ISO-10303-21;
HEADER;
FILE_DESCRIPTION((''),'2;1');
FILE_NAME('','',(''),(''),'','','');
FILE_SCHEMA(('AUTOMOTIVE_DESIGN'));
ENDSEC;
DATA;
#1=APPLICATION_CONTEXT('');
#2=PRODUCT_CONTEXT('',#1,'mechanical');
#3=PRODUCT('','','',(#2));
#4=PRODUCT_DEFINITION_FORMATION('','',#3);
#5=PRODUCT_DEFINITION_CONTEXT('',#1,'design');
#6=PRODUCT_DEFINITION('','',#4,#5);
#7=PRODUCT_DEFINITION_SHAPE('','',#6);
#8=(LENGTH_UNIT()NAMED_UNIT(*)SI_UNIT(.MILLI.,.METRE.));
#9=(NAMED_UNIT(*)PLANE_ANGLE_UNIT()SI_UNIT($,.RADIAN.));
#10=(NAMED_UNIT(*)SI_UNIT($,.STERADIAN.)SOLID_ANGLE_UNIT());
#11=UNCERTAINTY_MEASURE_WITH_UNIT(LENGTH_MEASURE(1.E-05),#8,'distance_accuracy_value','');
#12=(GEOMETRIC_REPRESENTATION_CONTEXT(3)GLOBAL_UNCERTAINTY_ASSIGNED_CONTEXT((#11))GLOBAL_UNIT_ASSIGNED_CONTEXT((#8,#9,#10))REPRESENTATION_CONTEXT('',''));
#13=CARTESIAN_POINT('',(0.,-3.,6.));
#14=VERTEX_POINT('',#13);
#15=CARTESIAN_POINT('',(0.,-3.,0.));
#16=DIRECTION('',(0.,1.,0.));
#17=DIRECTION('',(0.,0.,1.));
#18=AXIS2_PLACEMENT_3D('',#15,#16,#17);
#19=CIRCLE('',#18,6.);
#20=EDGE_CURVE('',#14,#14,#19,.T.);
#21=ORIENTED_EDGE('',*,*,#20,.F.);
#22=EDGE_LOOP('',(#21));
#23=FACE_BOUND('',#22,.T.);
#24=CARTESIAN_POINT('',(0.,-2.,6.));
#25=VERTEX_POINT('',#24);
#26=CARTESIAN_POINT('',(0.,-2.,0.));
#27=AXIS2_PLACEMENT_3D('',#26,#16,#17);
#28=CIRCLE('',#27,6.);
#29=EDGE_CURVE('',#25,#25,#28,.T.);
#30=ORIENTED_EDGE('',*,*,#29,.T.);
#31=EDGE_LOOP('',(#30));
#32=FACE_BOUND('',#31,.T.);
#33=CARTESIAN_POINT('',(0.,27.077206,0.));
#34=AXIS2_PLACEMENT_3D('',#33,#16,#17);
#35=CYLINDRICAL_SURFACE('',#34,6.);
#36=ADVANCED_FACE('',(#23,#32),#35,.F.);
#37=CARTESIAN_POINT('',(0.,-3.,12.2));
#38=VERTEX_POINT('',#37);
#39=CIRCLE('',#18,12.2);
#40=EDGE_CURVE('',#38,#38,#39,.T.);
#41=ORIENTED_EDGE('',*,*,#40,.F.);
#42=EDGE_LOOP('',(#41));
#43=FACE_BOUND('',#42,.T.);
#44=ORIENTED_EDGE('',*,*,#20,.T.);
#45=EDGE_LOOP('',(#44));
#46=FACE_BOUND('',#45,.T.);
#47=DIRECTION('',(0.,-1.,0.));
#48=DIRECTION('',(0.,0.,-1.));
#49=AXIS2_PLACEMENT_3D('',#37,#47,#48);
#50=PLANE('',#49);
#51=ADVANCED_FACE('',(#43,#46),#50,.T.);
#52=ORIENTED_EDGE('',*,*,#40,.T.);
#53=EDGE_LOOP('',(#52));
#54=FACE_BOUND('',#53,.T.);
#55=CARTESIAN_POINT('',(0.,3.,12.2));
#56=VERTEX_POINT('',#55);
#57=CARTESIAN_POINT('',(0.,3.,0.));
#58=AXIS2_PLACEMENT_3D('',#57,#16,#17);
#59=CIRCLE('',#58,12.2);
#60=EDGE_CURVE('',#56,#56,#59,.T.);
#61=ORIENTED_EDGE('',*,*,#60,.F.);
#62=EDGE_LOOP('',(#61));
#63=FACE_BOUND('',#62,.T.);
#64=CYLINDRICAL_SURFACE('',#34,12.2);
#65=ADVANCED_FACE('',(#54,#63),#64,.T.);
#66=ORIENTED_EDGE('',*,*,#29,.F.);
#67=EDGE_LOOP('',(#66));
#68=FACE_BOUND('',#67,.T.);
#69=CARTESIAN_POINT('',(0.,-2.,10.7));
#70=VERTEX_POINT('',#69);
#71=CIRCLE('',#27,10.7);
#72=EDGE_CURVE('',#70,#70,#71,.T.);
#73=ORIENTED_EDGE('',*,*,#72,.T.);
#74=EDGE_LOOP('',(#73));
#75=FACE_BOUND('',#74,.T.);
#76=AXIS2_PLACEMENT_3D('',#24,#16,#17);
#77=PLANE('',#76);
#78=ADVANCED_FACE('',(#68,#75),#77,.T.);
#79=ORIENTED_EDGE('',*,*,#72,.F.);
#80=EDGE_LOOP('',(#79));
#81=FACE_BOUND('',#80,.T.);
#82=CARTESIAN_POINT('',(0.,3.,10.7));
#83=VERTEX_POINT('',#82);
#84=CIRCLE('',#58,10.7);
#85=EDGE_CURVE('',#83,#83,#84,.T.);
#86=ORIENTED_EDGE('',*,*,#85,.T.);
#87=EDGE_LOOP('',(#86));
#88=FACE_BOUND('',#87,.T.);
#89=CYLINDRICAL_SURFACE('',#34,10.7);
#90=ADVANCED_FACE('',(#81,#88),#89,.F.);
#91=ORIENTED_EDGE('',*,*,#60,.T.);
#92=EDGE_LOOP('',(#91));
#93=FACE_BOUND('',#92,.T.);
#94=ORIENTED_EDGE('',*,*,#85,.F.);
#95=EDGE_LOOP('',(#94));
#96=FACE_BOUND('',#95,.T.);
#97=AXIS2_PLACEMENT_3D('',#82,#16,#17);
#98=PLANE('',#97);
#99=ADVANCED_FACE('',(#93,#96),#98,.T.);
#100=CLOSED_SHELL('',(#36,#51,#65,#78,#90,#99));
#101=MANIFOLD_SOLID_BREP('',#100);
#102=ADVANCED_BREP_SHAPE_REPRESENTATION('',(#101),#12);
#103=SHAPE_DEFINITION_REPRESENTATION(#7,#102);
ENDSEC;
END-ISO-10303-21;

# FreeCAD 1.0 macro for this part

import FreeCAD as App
import Part
import Sketcher


def add_polygon(sketch, points):
    """Adds a closed chain of lines whose ends are joined by coincident constraints."""
    first, n = sketch.GeometryCount, len(points)
    for a, b in zip(points, points[1:] + points[:1]):
        sketch.addGeometry(Part.LineSegment(App.Vector(*a, 0), App.Vector(*b, 0)), False)
    for i in range(n):
        sketch.addConstraint(Sketcher.Constraint("Coincident", first + i, 2, first + (i + 1) % n, 1))

doc = App.newDocument("Part")
body = doc.addObject("PartDesign::Body", "Body")

# Sketch on YZ plane
sketch1 = body.newObject("Sketcher::SketchObject", "Sketch")
sketch1.AttachmentSupport = (doc.getObject("YZ_Plane"), [""])
sketch1.MapMode = "FlatFace"
add_polygon(sketch1, [(3, 12.2), (-3, 12.2), (-3, 6), (-2, 6), (-2, 10.7), (3, 10.7)])  # lines 0-5
sketch1.addConstraint(Sketcher.Constraint("Horizontal", 0))
sketch1.addConstraint(Sketcher.Constraint("Vertical", 1))
sketch1.addConstraint(Sketcher.Constraint("Horizontal", 2))
sketch1.addConstraint(Sketcher.Constraint("Vertical", 3))
sketch1.addConstraint(Sketcher.Constraint("Horizontal", 4))
sketch1.addConstraint(Sketcher.Constraint("Vertical", 5))
sketch1.addConstraint(Sketcher.Constraint("DistanceX", 0, 2, 0, 1, 6.0))
sketch1.addConstraint(Sketcher.Constraint("DistanceX", 2, 1, 2, 2, 1.0))
sketch1.addConstraint(Sketcher.Constraint("DistanceY", 1, 2, 1, 1, 6.2))
sketch1.addConstraint(Sketcher.Constraint("DistanceY", 3, 1, 3, 2, 4.7))
sketch1.addConstraint(Sketcher.Constraint("DistanceX", 0, 2, -1, 1, 3.0))
sketch1.addConstraint(Sketcher.Constraint("DistanceY", -1, 1, 1, 2, 6.0))
revolution = body.newObject("PartDesign::Revolution", "Revolution")
revolution.Profile = sketch1
revolution.ReferenceAxis = (sketch1, ["H_Axis"])
revolution.Angle = 360

doc.recompute()
